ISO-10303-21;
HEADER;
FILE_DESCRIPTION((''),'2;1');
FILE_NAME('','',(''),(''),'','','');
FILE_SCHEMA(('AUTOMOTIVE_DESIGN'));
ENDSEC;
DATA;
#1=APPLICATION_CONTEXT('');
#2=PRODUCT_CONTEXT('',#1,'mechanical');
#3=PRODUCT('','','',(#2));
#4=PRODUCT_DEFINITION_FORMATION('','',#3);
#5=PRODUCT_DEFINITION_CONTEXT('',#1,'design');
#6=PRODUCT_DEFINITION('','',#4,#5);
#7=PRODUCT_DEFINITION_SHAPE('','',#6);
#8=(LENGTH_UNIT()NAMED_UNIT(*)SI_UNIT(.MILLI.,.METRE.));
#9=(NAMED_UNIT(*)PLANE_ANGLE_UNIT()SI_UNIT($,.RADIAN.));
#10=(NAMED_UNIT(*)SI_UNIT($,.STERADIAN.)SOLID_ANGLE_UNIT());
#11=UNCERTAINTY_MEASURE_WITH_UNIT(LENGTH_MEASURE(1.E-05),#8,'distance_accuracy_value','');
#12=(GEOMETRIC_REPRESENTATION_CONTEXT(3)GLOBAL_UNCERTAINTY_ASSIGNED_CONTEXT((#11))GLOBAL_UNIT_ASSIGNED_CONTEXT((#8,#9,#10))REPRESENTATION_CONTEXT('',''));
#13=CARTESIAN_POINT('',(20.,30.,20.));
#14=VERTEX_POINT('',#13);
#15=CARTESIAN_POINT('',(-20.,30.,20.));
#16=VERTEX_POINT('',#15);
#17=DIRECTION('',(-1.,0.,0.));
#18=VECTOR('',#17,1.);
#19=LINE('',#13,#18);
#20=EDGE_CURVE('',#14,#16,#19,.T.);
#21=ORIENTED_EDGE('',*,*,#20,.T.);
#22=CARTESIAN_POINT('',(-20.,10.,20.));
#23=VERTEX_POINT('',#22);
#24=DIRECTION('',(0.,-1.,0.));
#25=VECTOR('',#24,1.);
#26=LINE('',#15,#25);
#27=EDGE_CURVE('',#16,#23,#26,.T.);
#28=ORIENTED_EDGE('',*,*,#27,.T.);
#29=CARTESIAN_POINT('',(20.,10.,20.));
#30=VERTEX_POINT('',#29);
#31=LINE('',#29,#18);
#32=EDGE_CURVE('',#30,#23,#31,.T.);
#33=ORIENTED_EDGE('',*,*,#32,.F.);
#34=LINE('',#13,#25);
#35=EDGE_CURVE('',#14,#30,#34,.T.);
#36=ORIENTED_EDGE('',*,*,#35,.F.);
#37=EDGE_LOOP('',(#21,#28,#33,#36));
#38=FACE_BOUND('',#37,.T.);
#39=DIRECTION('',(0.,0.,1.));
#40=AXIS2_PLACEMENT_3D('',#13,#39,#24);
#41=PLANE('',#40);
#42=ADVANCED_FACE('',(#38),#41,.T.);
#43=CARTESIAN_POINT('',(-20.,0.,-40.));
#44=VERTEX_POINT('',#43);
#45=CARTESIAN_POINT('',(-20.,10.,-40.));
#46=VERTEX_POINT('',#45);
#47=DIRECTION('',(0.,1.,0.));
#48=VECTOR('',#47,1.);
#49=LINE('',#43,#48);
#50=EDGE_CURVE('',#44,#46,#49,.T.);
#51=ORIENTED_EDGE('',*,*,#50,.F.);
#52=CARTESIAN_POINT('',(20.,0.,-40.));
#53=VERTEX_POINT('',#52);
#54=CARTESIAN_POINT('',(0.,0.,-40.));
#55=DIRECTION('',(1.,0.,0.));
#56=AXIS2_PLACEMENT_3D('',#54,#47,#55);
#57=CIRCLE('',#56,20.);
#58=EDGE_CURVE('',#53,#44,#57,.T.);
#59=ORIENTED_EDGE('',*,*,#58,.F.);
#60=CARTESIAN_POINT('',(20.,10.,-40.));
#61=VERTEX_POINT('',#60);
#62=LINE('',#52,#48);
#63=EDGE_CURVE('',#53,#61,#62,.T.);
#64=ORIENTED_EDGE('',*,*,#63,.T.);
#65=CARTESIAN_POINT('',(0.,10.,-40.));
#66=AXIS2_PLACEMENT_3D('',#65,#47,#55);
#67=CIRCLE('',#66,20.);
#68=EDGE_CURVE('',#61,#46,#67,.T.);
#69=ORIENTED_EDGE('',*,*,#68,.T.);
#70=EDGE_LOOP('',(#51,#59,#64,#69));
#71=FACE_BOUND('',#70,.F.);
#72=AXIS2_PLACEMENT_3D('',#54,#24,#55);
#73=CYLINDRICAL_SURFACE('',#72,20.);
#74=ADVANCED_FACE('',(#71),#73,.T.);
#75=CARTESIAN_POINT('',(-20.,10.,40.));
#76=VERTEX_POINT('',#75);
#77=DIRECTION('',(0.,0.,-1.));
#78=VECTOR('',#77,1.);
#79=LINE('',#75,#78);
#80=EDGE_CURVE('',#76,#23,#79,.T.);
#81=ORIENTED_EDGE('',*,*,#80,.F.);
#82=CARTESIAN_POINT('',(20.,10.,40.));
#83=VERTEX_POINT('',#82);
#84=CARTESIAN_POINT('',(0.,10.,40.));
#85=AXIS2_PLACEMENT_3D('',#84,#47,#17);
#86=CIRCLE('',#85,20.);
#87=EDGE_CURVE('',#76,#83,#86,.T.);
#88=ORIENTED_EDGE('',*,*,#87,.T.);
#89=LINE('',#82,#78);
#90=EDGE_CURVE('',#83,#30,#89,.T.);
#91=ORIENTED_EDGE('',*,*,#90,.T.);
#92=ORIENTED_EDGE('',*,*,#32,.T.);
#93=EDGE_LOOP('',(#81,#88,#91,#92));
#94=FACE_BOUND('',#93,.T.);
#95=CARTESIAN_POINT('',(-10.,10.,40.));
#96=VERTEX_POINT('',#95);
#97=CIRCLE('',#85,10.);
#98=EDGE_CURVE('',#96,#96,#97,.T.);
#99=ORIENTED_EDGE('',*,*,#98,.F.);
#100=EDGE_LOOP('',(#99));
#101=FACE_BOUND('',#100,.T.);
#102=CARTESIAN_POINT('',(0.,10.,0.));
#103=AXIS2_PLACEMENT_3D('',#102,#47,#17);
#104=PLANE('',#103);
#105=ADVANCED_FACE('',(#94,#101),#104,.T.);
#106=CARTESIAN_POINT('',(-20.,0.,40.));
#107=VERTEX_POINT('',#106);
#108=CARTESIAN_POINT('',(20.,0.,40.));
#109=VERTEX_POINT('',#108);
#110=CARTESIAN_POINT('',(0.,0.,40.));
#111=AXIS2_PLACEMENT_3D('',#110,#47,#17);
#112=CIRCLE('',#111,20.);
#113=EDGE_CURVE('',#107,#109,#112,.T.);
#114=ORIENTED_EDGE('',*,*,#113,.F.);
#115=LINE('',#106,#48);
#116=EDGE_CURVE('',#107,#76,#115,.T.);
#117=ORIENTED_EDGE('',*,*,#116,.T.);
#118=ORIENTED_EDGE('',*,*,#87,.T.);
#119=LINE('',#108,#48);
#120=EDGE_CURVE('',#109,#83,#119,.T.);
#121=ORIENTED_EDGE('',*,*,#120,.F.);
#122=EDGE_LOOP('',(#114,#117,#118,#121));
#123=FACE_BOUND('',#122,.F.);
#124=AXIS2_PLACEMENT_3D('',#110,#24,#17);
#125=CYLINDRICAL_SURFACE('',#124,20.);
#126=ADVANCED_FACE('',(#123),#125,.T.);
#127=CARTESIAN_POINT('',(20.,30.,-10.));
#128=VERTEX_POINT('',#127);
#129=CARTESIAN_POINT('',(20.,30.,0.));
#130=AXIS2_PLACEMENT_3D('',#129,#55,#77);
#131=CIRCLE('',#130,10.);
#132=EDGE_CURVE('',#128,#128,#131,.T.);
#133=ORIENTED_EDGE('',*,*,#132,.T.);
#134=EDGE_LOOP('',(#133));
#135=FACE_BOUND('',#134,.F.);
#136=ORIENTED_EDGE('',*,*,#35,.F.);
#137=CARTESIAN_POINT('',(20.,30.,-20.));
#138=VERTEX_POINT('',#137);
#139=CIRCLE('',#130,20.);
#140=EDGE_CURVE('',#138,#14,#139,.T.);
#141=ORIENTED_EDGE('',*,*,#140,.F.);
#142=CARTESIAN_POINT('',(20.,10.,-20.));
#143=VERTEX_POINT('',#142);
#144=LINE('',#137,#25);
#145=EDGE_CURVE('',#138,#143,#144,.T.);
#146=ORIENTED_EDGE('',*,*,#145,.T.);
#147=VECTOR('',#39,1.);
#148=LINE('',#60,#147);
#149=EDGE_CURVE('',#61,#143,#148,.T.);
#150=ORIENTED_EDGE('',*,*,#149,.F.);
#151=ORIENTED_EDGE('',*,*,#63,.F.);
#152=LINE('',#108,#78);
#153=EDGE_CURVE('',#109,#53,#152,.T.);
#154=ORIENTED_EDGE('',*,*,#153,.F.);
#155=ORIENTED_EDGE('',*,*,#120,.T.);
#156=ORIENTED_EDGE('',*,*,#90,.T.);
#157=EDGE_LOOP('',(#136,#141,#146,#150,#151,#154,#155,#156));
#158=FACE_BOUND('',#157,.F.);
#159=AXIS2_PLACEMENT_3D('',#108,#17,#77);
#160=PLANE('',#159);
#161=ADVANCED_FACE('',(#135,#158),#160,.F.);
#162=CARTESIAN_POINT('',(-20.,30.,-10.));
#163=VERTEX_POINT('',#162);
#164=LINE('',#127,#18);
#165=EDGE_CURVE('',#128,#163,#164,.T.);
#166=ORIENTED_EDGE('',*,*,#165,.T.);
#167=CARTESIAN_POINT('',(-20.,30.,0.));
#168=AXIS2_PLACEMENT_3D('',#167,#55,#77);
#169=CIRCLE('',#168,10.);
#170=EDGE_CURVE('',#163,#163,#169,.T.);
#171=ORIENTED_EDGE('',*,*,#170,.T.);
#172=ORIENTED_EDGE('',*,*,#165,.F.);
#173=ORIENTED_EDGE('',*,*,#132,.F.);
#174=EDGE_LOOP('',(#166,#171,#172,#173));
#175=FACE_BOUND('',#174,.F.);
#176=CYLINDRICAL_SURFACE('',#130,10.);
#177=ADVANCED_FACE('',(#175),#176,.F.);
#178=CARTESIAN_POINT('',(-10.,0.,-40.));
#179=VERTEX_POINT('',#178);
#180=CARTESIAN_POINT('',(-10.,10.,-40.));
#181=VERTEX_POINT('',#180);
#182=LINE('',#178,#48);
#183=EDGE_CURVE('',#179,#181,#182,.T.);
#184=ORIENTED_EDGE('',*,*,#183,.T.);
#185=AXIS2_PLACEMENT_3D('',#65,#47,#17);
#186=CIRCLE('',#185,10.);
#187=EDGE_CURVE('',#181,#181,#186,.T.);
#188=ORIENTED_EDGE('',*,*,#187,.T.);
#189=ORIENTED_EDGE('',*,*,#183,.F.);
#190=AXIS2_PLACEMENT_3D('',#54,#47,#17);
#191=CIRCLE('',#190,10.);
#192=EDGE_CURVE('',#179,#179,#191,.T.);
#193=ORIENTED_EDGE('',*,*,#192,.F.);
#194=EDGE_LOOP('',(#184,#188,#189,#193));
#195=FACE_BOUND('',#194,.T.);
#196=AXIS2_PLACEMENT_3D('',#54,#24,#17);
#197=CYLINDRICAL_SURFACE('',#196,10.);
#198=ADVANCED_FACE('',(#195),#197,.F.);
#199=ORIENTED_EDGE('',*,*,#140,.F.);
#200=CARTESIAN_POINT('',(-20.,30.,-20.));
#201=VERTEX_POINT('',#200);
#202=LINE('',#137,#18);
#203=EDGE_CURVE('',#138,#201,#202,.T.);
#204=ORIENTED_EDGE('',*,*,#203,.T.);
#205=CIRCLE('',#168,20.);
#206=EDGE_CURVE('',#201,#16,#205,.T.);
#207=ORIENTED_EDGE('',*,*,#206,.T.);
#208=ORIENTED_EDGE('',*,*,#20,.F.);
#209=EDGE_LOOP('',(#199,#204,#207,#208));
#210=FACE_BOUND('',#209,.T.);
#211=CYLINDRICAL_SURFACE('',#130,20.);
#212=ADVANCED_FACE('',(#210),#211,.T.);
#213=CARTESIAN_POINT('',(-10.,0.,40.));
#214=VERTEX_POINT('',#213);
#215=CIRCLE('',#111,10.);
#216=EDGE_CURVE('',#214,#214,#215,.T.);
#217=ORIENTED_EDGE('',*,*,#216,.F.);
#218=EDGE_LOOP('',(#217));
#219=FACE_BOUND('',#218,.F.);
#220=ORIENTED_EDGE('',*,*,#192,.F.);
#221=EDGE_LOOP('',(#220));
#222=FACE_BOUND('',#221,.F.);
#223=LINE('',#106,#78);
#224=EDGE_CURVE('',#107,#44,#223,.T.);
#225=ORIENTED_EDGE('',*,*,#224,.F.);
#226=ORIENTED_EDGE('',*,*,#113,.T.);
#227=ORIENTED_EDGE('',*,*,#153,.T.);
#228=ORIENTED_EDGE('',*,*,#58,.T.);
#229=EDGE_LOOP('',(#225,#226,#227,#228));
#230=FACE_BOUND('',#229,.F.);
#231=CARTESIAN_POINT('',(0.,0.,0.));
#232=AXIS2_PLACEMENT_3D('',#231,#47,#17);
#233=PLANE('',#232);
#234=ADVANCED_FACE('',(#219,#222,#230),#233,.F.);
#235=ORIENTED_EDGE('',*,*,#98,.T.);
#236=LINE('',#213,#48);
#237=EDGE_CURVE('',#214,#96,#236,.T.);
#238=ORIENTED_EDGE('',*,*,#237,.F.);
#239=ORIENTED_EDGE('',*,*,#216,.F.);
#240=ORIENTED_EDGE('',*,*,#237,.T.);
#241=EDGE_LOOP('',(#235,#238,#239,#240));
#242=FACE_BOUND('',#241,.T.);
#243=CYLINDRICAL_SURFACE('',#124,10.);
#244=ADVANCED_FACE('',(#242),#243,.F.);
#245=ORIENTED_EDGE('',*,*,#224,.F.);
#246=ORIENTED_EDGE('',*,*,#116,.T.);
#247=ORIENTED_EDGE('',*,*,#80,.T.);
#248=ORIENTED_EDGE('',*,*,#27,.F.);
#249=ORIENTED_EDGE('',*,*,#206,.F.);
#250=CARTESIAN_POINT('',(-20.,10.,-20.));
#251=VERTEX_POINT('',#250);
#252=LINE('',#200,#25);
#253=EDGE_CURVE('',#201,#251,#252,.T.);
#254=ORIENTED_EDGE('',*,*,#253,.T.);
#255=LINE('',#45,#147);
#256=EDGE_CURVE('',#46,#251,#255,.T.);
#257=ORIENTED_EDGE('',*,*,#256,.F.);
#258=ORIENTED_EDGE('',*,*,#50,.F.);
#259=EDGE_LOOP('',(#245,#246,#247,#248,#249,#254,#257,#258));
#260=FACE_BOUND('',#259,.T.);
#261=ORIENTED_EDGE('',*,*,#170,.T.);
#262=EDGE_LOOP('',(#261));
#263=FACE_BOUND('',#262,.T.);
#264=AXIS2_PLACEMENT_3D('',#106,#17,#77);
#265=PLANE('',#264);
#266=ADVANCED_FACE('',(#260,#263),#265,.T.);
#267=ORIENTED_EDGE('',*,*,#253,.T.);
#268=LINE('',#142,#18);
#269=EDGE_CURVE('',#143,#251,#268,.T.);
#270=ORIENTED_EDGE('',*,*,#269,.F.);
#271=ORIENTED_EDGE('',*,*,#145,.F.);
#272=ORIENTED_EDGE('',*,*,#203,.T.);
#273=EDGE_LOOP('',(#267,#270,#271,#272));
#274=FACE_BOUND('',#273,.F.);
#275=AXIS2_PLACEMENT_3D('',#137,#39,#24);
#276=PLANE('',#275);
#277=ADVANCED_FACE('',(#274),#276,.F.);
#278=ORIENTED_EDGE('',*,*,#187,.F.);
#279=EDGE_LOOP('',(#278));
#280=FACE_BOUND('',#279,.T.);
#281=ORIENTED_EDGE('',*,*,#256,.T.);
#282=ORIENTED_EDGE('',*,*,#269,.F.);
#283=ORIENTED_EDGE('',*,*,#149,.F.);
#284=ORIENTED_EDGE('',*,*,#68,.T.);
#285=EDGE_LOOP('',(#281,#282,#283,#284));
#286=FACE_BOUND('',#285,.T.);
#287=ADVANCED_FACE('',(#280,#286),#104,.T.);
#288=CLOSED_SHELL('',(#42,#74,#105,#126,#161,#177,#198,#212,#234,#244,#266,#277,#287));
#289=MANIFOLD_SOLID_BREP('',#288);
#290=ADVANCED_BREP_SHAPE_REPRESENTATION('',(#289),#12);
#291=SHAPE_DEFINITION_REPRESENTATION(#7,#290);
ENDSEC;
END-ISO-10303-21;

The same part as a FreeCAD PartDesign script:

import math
import FreeCAD as App
import Part
import Sketcher
Q = App.Units.Quantity

doc = App.newDocument("Part")
body = doc.addObject("PartDesign::Body", "Body")

sketch1 = body.newObject("Sketcher::SketchObject", "Sketch")
sketch1.AttachmentSupport = (doc.getObject("XZ_Plane"), [""])
sketch1.MapMode = "FlatFace"
sketch1.addGeometry([
    Part.LineSegment(App.Vector(20, 40, 0), App.Vector(20, -40, 0)),
    Part.ArcOfCircle(Part.Circle(App.Vector(0, -40, 0), App.Vector(0, 0, 1), 20), math.radians(180), math.radians(360)),
    Part.LineSegment(App.Vector(-20, -40, 0), App.Vector(-20, 40, 0)),
    Part.ArcOfCircle(Part.Circle(App.Vector(0, 40, 0), App.Vector(0, 0, 1), 20), math.radians(0), math.radians(180)),
    Part.Circle(App.Vector(0, -40, 0), App.Vector(0, 0, 1), 10),
    Part.Circle(App.Vector(0, 40, 0), App.Vector(0, 0, 1), 10),
], False)
sketch1.addConstraint([
    Sketcher.Constraint("Tangent", 0, 2, 1, 2),
    Sketcher.Constraint("Tangent", 1, 1, 2, 1),
    Sketcher.Constraint("Tangent", 2, 2, 3, 2),
    Sketcher.Constraint("Tangent", 3, 1, 0, 1),
    Sketcher.Constraint("Vertical", 0),
    Sketcher.Constraint("Vertical", 2),
    Sketcher.Constraint("Coincident", 4, 3, 1, 3),
    Sketcher.Constraint("Coincident", 5, 3, 3, 3),
    Sketcher.Constraint("Equal", 4, 5),
    Sketcher.Constraint("Symmetric", 1, 3, 3, 3, -1, 1),
    Sketcher.Constraint("Diameter", 4, Q("20 mm")),
    Sketcher.Constraint("Radius", 1, Q("20 mm")),
    Sketcher.Constraint("DistanceY", 1, 3, -1, 1, Q("40 mm")),
])
pad1 = body.newObject("PartDesign::Pad", "Pad")
pad1.Profile = sketch1
pad1.Length = 10
pad1.Reversed = True

sketch2 = body.newObject("Sketcher::SketchObject", "Sketch001")
sketch2.AttachmentSupport = (doc.getObject("YZ_Plane"), [""])
sketch2.MapMode = "FlatFace"
sketch2.AttachmentOffset = App.Placement(App.Vector(0, 0, 20), App.Rotation())
sketch2.addGeometry([
    Part.LineSegment(App.Vector(10, -20, 0), App.Vector(30, -20, 0)),
    Part.ArcOfCircle(Part.Circle(App.Vector(30, 0, 0), App.Vector(0, 0, 1), 20), math.radians(-90), math.radians(90)),
    Part.LineSegment(App.Vector(30, 20, 0), App.Vector(10, 20, 0)),
    Part.LineSegment(App.Vector(10, 20, 0), App.Vector(10, -20, 0)),
    Part.Circle(App.Vector(30, 0, 0), App.Vector(0, 0, 1), 10),
], False)
sketch2.addConstraint([
    Sketcher.Constraint("Tangent", 0, 2, 1, 1),
    Sketcher.Constraint("Tangent", 1, 2, 2, 1),
    Sketcher.Constraint("Coincident", 2, 2, 3, 1),
    Sketcher.Constraint("Coincident", 3, 2, 0, 1),
    Sketcher.Constraint("Horizontal", 0),
    Sketcher.Constraint("Horizontal", 2),
    Sketcher.Constraint("Vertical", 3),
    Sketcher.Constraint("Coincident", 4, 3, 1, 3),
    Sketcher.Constraint("PointOnObject", 1, 3, -1),
    Sketcher.Constraint("Diameter", 4, Q("20 mm")),
    Sketcher.Constraint("Radius", 1, Q("20 mm")),
    Sketcher.Constraint("DistanceX", 0, 1, 0, 2, Q("20 mm")),
    Sketcher.Constraint("DistanceX", -1, 1, 1, 3, Q("30 mm")),
])
pad2 = body.newObject("PartDesign::Pad", "Pad001")
pad2.Profile = sketch2
pad2.Length = 40
pad2.Reversed = True

doc.recompute()
